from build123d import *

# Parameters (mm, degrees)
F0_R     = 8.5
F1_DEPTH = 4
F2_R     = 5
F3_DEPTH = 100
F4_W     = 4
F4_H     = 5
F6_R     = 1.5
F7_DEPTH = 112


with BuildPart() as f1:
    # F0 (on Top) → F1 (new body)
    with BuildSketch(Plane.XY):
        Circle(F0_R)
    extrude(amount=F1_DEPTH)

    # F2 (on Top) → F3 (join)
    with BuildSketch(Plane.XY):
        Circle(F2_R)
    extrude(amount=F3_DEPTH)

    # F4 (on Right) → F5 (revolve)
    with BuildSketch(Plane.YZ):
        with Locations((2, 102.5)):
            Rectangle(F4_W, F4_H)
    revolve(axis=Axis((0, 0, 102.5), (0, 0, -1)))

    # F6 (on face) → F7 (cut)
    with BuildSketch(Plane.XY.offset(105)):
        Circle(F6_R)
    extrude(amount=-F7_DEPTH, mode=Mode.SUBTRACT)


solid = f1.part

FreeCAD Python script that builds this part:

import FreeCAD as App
import Part
import Sketcher

V = App.Vector


def add_polygon(sketch, points):
    """Adds a closed chain of lines whose ends are joined by coincident constraints."""
    first, n = sketch.GeometryCount, len(points)
    for a, b in zip(points, points[1:] + points[:1]):
        sketch.addGeometry(Part.LineSegment(App.Vector(*a, 0), App.Vector(*b, 0)), False)
    for i in range(n):
        sketch.addConstraint(Sketcher.Constraint("Coincident", first + i, 2, first + (i + 1) % n, 1))

doc = App.newDocument("Part")
body = doc.addObject("PartDesign::Body", "Body")

# Sketch on XY plane
sketch1 = body.newObject("Sketcher::SketchObject", "Sketch")
sketch1.AttachmentSupport = (doc.getObject("XY_Plane"), [""])
sketch1.MapMode = "FlatFace"
sketch1.addGeometry(Part.Circle(V(0, 0, 0), V(0, 0, 1), 8), False)
sketch1.addConstraint([
    Sketcher.Constraint("Coincident", 0, 3, -1, 1),
    Sketcher.Constraint("Diameter", 0, 17.0),
])
pad1 = body.newObject("PartDesign::Pad", "Pad")
pad1.Profile = sketch1
pad1.Length = 4

# Sketch on XY plane
sketch2 = body.newObject("Sketcher::SketchObject", "Sketch001")
sketch2.AttachmentSupport = (doc.getObject("XY_Plane"), [""])
sketch2.MapMode = "FlatFace"
sketch2.addGeometry(Part.Circle(V(0, 0, 0), V(0, 0, 1), 5), False)
sketch2.addConstraint([
    Sketcher.Constraint("Coincident", 0, 3, -1, 1),
    Sketcher.Constraint("Diameter", 0, 10.0),
])
pad2 = body.newObject("PartDesign::Pad", "Pad001")
pad2.Profile = sketch2
pad2.Length = 100

# Sketch on YZ plane
sketch3 = body.newObject("Sketcher::SketchObject", "Sketch002")
sketch3.AttachmentSupport = (doc.getObject("YZ_Plane"), [""])
sketch3.MapMode = "FlatFace"
add_polygon(sketch3, [(0, 105), (0, 100), (4, 100), (4, 105)])  # lines 0-3
sketch3.addConstraint([
    Sketcher.Constraint("Vertical", 0),
    Sketcher.Constraint("Horizontal", 1),
    Sketcher.Constraint("Vertical", 2),
    Sketcher.Constraint("Horizontal", 3),
    Sketcher.Constraint("PointOnObject", 0, 2, -2),
    Sketcher.Constraint("DistanceX", 1, 1, 1, 2, 4.0),
    Sketcher.Constraint("DistanceY", 0, 2, 0, 1, 5.0),
    Sketcher.Constraint("DistanceY", -1, 1, 0, 2, 100.0),
])
revolution = body.newObject("PartDesign::Revolution", "Revolution")
revolution.Profile = sketch3
revolution.ReferenceAxis = (sketch3, ["V_Axis"])
revolution.Angle = 360

# Sketch on XY plane
sketch4 = body.newObject("Sketcher::SketchObject", "Sketch003")
sketch4.AttachmentSupport = (doc.getObject("XY_Plane"), [""])
sketch4.MapMode = "FlatFace"
sketch4.AttachmentOffset = App.Placement(V(0, 0, 105), App.Rotation())
sketch4.addGeometry(Part.Circle(V(0, 0, 0), V(0, 0, 1), 1.5), False)
sketch4.addConstraint([
    Sketcher.Constraint("Coincident", 0, 3, -1, 1),
    Sketcher.Constraint("Diameter", 0, 3.0),
])
pocket1 = body.newObject("PartDesign::Pocket", "Pocket")
pocket1.Profile = sketch4
pocket1.Length = 112

doc.recompute()
